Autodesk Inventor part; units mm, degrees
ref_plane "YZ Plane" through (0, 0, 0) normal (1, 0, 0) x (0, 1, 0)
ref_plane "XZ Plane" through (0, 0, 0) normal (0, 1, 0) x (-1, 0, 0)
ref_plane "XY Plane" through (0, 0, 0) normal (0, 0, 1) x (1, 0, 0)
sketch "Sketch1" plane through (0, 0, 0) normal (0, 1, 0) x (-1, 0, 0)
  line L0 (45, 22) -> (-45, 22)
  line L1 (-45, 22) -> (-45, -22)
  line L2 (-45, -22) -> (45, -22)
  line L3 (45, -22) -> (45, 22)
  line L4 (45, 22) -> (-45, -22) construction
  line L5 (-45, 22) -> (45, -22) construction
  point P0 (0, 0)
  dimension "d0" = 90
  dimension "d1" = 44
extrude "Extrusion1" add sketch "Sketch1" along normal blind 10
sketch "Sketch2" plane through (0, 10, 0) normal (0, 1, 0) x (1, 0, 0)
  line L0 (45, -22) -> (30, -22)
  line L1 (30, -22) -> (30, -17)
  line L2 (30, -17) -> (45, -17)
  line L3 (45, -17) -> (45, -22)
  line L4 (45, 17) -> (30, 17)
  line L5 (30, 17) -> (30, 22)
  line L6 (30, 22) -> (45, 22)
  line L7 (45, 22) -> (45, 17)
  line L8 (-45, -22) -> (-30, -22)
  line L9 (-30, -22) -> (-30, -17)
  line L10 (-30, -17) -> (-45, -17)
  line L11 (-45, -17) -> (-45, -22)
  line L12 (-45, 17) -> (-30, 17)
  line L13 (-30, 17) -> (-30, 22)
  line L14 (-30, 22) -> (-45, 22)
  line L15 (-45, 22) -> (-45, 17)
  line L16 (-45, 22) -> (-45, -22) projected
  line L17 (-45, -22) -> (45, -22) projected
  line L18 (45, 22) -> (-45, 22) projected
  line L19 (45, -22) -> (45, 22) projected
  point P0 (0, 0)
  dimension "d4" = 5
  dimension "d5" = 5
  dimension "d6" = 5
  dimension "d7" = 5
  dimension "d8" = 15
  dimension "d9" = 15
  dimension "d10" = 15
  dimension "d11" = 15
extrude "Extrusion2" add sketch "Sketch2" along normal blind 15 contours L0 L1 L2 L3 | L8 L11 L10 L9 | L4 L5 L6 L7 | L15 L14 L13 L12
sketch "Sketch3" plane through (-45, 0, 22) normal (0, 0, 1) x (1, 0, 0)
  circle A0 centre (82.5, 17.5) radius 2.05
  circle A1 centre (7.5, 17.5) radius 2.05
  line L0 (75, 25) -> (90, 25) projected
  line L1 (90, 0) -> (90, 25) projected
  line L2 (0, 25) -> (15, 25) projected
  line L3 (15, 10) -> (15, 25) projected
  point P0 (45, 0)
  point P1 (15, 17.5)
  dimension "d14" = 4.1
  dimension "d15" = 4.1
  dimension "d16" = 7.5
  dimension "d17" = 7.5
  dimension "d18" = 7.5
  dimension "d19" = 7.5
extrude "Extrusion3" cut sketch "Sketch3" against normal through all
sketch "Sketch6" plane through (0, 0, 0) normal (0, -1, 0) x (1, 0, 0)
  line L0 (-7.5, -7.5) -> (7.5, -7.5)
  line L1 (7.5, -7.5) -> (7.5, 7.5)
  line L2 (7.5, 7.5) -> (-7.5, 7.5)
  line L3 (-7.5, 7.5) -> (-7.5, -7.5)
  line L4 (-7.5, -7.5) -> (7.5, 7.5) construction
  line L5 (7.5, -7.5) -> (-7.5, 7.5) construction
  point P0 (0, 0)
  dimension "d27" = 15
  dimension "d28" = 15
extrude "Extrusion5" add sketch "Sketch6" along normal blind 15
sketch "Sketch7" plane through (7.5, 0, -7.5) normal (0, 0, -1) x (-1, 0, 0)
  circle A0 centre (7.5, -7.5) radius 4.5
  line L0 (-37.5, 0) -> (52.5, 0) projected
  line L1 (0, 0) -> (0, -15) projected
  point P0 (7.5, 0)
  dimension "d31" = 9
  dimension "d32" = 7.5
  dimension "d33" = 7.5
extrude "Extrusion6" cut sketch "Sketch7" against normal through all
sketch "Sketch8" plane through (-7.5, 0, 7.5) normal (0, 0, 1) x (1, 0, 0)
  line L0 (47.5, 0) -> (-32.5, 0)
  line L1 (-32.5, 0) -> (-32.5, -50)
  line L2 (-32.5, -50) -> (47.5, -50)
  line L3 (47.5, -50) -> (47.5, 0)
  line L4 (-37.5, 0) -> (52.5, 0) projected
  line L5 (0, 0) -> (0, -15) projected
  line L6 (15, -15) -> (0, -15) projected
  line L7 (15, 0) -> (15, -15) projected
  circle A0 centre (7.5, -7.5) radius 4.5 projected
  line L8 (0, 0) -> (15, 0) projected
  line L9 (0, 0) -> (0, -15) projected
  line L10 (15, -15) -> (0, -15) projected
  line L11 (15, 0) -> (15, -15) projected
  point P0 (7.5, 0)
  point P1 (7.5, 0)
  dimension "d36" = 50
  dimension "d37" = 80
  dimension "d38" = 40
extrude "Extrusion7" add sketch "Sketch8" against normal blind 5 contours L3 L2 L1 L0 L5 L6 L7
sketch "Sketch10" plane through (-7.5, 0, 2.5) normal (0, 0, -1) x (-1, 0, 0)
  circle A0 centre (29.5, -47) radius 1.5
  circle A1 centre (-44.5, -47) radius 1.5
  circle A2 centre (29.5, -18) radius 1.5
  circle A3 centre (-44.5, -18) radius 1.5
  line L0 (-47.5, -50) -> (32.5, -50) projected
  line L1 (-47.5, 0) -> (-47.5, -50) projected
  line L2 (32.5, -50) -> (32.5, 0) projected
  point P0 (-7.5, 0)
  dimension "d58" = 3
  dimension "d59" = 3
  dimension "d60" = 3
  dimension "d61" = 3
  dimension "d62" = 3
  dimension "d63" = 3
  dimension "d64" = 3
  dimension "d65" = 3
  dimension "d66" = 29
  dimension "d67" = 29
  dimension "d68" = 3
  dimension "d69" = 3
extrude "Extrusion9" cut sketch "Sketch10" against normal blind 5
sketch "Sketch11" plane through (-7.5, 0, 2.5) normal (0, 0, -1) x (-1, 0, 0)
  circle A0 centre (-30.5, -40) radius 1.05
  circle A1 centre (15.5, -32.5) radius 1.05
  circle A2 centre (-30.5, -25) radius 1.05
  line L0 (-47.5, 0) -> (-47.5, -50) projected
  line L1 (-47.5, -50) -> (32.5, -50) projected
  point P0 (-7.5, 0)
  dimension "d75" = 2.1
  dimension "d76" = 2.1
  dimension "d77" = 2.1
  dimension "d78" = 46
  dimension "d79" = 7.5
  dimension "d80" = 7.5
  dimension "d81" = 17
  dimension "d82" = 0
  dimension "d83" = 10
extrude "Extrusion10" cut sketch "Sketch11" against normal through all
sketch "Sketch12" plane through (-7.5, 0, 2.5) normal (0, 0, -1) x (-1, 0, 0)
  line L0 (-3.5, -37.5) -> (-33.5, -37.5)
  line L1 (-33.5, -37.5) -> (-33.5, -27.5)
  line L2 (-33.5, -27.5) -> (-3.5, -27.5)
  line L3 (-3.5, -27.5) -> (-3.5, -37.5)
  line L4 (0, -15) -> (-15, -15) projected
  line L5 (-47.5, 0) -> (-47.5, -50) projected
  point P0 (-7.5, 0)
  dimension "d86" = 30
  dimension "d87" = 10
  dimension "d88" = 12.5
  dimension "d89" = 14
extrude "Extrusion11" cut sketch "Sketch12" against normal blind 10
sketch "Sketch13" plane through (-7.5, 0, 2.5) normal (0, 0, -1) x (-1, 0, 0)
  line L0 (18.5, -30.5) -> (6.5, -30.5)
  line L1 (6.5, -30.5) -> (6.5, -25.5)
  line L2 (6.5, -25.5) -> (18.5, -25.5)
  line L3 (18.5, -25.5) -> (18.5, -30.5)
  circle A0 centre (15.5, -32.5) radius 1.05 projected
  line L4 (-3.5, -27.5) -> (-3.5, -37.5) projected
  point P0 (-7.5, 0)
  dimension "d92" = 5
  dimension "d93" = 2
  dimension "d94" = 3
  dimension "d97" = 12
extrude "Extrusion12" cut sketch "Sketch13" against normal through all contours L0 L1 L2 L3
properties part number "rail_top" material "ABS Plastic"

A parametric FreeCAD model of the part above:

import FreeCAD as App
import Part
import Sketcher
Q = App.Units.Quantity

doc = App.newDocument("Part")
body = doc.addObject("PartDesign::Body", "Body")

# Sketch on XZ plane
sketch1 = doc.addObject("Sketcher::SketchObject", "Sketch")
body.addObject(sketch1)
sketch1.AttachmentSupport = (doc.XZ_Plane, [""])
sketch1.MapMode = "FlatFace"
sketch1.addGeometry([
    Part.LineSegment(App.Vector(-45, -22, 0), App.Vector(-45, 22, 0)),
    Part.LineSegment(App.Vector(-45, 22, 0), App.Vector(45, 22, 0)),
    Part.LineSegment(App.Vector(45, 22, 0), App.Vector(45, -22, 0)),
    Part.LineSegment(App.Vector(45, -22, 0), App.Vector(-45, -22, 0)),
], False)
sketch1.addConstraint([
    Sketcher.Constraint("Coincident", 0, 2, 1, 1),
    Sketcher.Constraint("Coincident", 1, 2, 2, 1),
    Sketcher.Constraint("Coincident", 2, 2, 3, 1),
    Sketcher.Constraint("Coincident", 3, 2, 0, 1),
    Sketcher.Constraint("Vertical", 0),
    Sketcher.Constraint("Horizontal", 1),
    Sketcher.Constraint("Vertical", 2),
    Sketcher.Constraint("Horizontal", 3),
    Sketcher.Constraint("Symmetric", 0, 2, 2, 2, -1, 1),
    Sketcher.Constraint("DistanceX", 1, 1, 1, 2, Q("90 mm")),
    Sketcher.Constraint("DistanceY", 0, 1, 0, 2, Q("44 mm")),
])
pad1 = doc.addObject("PartDesign::Pad", "Pad")
body.addObject(pad1)
pad1.Profile = sketch1
pad1.Length = 10
pad1.Reversed = True

# Sketch on XZ plane
sketch2 = doc.addObject("Sketcher::SketchObject", "Sketch001")
body.addObject(sketch2)
sketch2.AttachmentSupport = (doc.XZ_Plane, [""])
sketch2.MapMode = "FlatFace"
sketch2.AttachmentOffset = App.Placement(App.Vector(0, 0, -10), App.Rotation())
sketch2.addGeometry([
    Part.LineSegment(App.Vector(30, 22, 0), App.Vector(45, 22, 0)),  # 0
    Part.LineSegment(App.Vector(45, 22, 0), App.Vector(45, 17, 0)),  # 1
    Part.LineSegment(App.Vector(45, 17, 0), App.Vector(30, 17, 0)),  # 2
    Part.LineSegment(App.Vector(30, 17, 0), App.Vector(30, 22, 0)),  # 3
    Part.LineSegment(App.Vector(-45, 22, 0), App.Vector(-30, 22, 0)),  # 4
    Part.LineSegment(App.Vector(-30, 22, 0), App.Vector(-30, 17, 0)),  # 5
    Part.LineSegment(App.Vector(-30, 17, 0), App.Vector(-45, 17, 0)),  # 6
    Part.LineSegment(App.Vector(-45, 17, 0), App.Vector(-45, 22, 0)),  # 7
    Part.LineSegment(App.Vector(30, -17, 0), App.Vector(45, -17, 0)),  # 8
    Part.LineSegment(App.Vector(45, -17, 0), App.Vector(45, -22, 0)),  # 9
    Part.LineSegment(App.Vector(45, -22, 0), App.Vector(30, -22, 0)),  # 10
    Part.LineSegment(App.Vector(30, -22, 0), App.Vector(30, -17, 0)),  # 11
    Part.LineSegment(App.Vector(-45, -22, 0), App.Vector(-45, -17, 0)),  # 12
    Part.LineSegment(App.Vector(-45, -17, 0), App.Vector(-30, -17, 0)),  # 13
    Part.LineSegment(App.Vector(-30, -17, 0), App.Vector(-30, -22, 0)),  # 14
    Part.LineSegment(App.Vector(-30, -22, 0), App.Vector(-45, -22, 0)),  # 15
], False)
sketch2.addConstraint([
    Sketcher.Constraint("Coincident", 0, 2, 1, 1),
    Sketcher.Constraint("Coincident", 1, 2, 2, 1),
    Sketcher.Constraint("Coincident", 2, 2, 3, 1),
    Sketcher.Constraint("Coincident", 3, 2, 0, 1),
    Sketcher.Constraint("Coincident", 4, 2, 5, 1),
    Sketcher.Constraint("Coincident", 5, 2, 6, 1),
    Sketcher.Constraint("Coincident", 6, 2, 7, 1),
    Sketcher.Constraint("Coincident", 7, 2, 4, 1),
    Sketcher.Constraint("Coincident", 8, 2, 9, 1),
    Sketcher.Constraint("Coincident", 9, 2, 10, 1),
    Sketcher.Constraint("Coincident", 10, 2, 11, 1),
    Sketcher.Constraint("Coincident", 11, 2, 8, 1),
    Sketcher.Constraint("Coincident", 12, 2, 13, 1),
    Sketcher.Constraint("Coincident", 13, 2, 14, 1),
    Sketcher.Constraint("Coincident", 14, 2, 15, 1),
    Sketcher.Constraint("Coincident", 15, 2, 12, 1),
    Sketcher.Constraint("Horizontal", 0),
    Sketcher.Constraint("Vertical", 1),
    Sketcher.Constraint("Horizontal", 2),
    Sketcher.Constraint("Vertical", 3),
    Sketcher.Constraint("Horizontal", 4),
    Sketcher.Constraint("Vertical", 5),
    Sketcher.Constraint("Horizontal", 6),
    Sketcher.Constraint("Vertical", 7),
    Sketcher.Constraint("Horizontal", 8),
    Sketcher.Constraint("Vertical", 9),
    Sketcher.Constraint("Horizontal", 10),
    Sketcher.Constraint("Vertical", 11),
    Sketcher.Constraint("Vertical", 12),
    Sketcher.Constraint("Horizontal", 13),
    Sketcher.Constraint("Vertical", 14),
    Sketcher.Constraint("Horizontal", 15),
    Sketcher.Constraint("Symmetric", 6, 2, 8, 2, -1, 1),
    Sketcher.Constraint("Symmetric", 4, 2, 10, 2, -1, 1),
    Sketcher.Constraint("Symmetric", 1, 2, 12, 2, -1, 1),
    Sketcher.Constraint("Symmetric", 3, 2, 14, 2, -1, 1),
    Sketcher.Constraint("Symmetric", 3, 2, 4, 2, -2),
    Sketcher.Constraint("Symmetric", 1, 2, 6, 2, -2),
    Sketcher.Constraint("DistanceX", 0, 1, 0, 2, Q("15 mm")),
    Sketcher.Constraint("DistanceY", 1, 2, 1, 1, Q("5 mm")),
    Sketcher.Constraint("DistanceX", -1, 1, 0, 2, Q("45 mm")),
    Sketcher.Constraint("DistanceY", -1, 1, 0, 2, Q("22 mm")),
])
pad2 = doc.addObject("PartDesign::Pad", "Pad001")
body.addObject(pad2)
pad2.Profile = sketch2
pad2.Length = 15
pad2.Reversed = True

# Sketch on XY plane
sketch3 = doc.addObject("Sketcher::SketchObject", "Sketch002")
body.addObject(sketch3)
sketch3.AttachmentSupport = (doc.XY_Plane, [""])
sketch3.MapMode = "FlatFace"
sketch3.AttachmentOffset = App.Placement(App.Vector(0, 0, 22), App.Rotation())
sketch3.addGeometry([
    Part.Circle(App.Vector(37.5, 17.5, 0), App.Vector(0, 0, 1), 2.05),
    Part.Circle(App.Vector(-37.5, 17.5, 0), App.Vector(0, 0, 1), 2.05),
], False)
sketch3.addConstraint([
    Sketcher.Constraint("Equal", 0, 1),
    Sketcher.Constraint("Symmetric", 0, 3, 1, 3, -2),
    Sketcher.Constraint("Diameter", 0, Q("4.1 mm")),
    Sketcher.Constraint("DistanceX", 1, 3, 0, 3, Q("75 mm")),
    Sketcher.Constraint("DistanceY", -1, 1, 0, 3, Q("17.5 mm")),
])
pocket1 = doc.addObject("PartDesign::Pocket", "Pocket")
body.addObject(pocket1)
pocket1.Profile = sketch3
pocket1.Type = "ThroughAll"

# Sketch on XZ plane
sketch4 = doc.addObject("Sketcher::SketchObject", "Sketch003")
body.addObject(sketch4)
sketch4.AttachmentSupport = (doc.XZ_Plane, [""])
sketch4.MapMode = "FlatFace"
sketch4.addGeometry([
    Part.LineSegment(App.Vector(-7.5, 7.5, 0), App.Vector(-7.5, -7.5, 0)),
    Part.LineSegment(App.Vector(-7.5, -7.5, 0), App.Vector(7.5, -7.5, 0)),
    Part.LineSegment(App.Vector(7.5, -7.5, 0), App.Vector(7.5, 7.5, 0)),
    Part.LineSegment(App.Vector(7.5, 7.5, 0), App.Vector(-7.5, 7.5, 0)),
], False)
sketch4.addConstraint([
    Sketcher.Constraint("Coincident", 0, 2, 1, 1),
    Sketcher.Constraint("Coincident", 1, 2, 2, 1),
    Sketcher.Constraint("Coincident", 2, 2, 3, 1),
    Sketcher.Constraint("Coincident", 3, 2, 0, 1),
    Sketcher.Constraint("Vertical", 0),
    Sketcher.Constraint("Horizontal", 1),
    Sketcher.Constraint("Vertical", 2),
    Sketcher.Constraint("Horizontal", 3),
    Sketcher.Constraint("Symmetric", 0, 2, 2, 2, -1, 1),
    Sketcher.Constraint("Equal", 3, 0),
    Sketcher.Constraint("DistanceX", 1, 1, 1, 2, Q("15 mm")),
])
pad3 = doc.addObject("PartDesign::Pad", "Pad002")
body.addObject(pad3)
pad3.Profile = sketch4
pad3.Length = 15

# Sketch on XY plane
sketch5 = doc.addObject("Sketcher::SketchObject", "Sketch004")
body.addObject(sketch5)
sketch5.AttachmentSupport = (doc.XY_Plane, [""])
sketch5.MapMode = "FlatFace"
sketch5.AttachmentOffset = App.Placement(App.Vector(0, 0, -7.5), App.Rotation())
sketch5.addGeometry(Part.Circle(App.Vector(0, -7.5, 0), App.Vector(0, 0, 1), 4.5), False)
sketch5.addConstraint([
    Sketcher.Constraint("PointOnObject", 0, 3, -2),
    Sketcher.Constraint("Diameter", 0, Q("9 mm")),
    Sketcher.Constraint("DistanceY", 0, 3, -1, 1, Q("7.5 mm")),
])
pocket2 = doc.addObject("PartDesign::Pocket", "Pocket001")
body.addObject(pocket2)
pocket2.Profile = sketch5
pocket2.Type = "ThroughAll"
pocket2.Reversed = True

# Sketch on XY plane
sketch6 = doc.addObject("Sketcher::SketchObject", "Sketch005")
body.addObject(sketch6)
sketch6.AttachmentSupport = (doc.XY_Plane, [""])
sketch6.MapMode = "FlatFace"
sketch6.AttachmentOffset = App.Placement(App.Vector(0, 0, 7.5), App.Rotation())
sketch6.addGeometry([
    Part.LineSegment(App.Vector(40, -50, 0), App.Vector(40, 0, 0)),  # 0
    Part.LineSegment(App.Vector(40, 0, 0), App.Vector(7.5, 0, 0)),  # 1
    Part.LineSegment(App.Vector(7.5, 0, 0), App.Vector(7.5, -15, 0)),  # 2
    Part.LineSegment(App.Vector(7.5, -15, 0), App.Vector(-7.5, -15, 0)),  # 3
    Part.LineSegment(App.Vector(-7.5, -15, 0), App.Vector(-7.5, 0, 0)),  # 4
    Part.LineSegment(App.Vector(-7.5, 0, 0), App.Vector(-40, 0, 0)),  # 5
    Part.LineSegment(App.Vector(-40, 0, 0), App.Vector(-40, -50, 0)),  # 6
    Part.LineSegment(App.Vector(-40, -50, 0), App.Vector(40, -50, 0)),  # 7
], False)
sketch6.addConstraint([
    Sketcher.Constraint("Coincident", 0, 2, 1, 1),
    Sketcher.Constraint("Coincident", 1, 2, 2, 1),
    Sketcher.Constraint("Coincident", 2, 2, 3, 1),
    Sketcher.Constraint("Coincident", 3, 2, 4, 1),
    Sketcher.Constraint("Coincident", 4, 2, 5, 1),
    Sketcher.Constraint("Coincident", 5, 2, 6, 1),
    Sketcher.Constraint("Coincident", 6, 2, 7, 1),
    Sketcher.Constraint("Coincident", 7, 2, 0, 1),
    Sketcher.Constraint("Vertical", 0),
    Sketcher.Constraint("Horizontal", 1),
    Sketcher.Constraint("Vertical", 2),
    Sketcher.Constraint("Horizontal", 3),
    Sketcher.Constraint("Vertical", 4),
    Sketcher.Constraint("Horizontal", 5),
    Sketcher.Constraint("Vertical", 6),
    Sketcher.Constraint("Horizontal", 7),
    Sketcher.Constraint("Symmetric", 1, 2, 4, 2, -1, 1),
    Sketcher.Constraint("Symmetric", 0, 2, 5, 2, -2),
    Sketcher.Constraint("Equal", 3, 2),
    Sketcher.Constraint("DistanceX", 7, 1, 7, 2, Q("80 mm")),
    Sketcher.Constraint("DistanceY", 0, 1, 0, 2, Q("50 mm")),
    Sketcher.Constraint("DistanceX", 3, 2, 3, 1, Q("15 mm")),
])
pad4 = doc.addObject("PartDesign::Pad", "Pad003")
body.addObject(pad4)
pad4.Profile = sketch6
pad4.Length = 5
pad4.Reversed = True

# Sketch on XY plane
sketch7 = doc.addObject("Sketcher::SketchObject", "Sketch006")
body.addObject(sketch7)
sketch7.AttachmentSupport = (doc.XY_Plane, [""])
sketch7.MapMode = "FlatFace"
sketch7.AttachmentOffset = App.Placement(App.Vector(0, 0, 2.5), App.Rotation())
sketch7.addGeometry([
    Part.Circle(App.Vector(-37, -47, 0), App.Vector(0, 0, 1), 1.5),
    Part.Circle(App.Vector(37, -47, 0), App.Vector(0, 0, 1), 1.5),
    Part.Circle(App.Vector(-37, -18, 0), App.Vector(0, 0, 1), 1.5),
    Part.Circle(App.Vector(37, -18, 0), App.Vector(0, 0, 1), 1.5),
], False)
sketch7.addConstraint([
    Sketcher.Constraint("Equal", 0, 1),
    Sketcher.Constraint("Equal", 1, 2),
    Sketcher.Constraint("Equal", 2, 3),
    Sketcher.Constraint("Symmetric", 0, 3, 1, 3, -2),
    Sketcher.Constraint("Symmetric", 2, 3, 3, 3, -2),
    Sketcher.Constraint("Vertical", 0, 3, 2, 3),
    Sketcher.Constraint("Diameter", 0, Q("3 mm")),
    Sketcher.Constraint("DistanceY", 0, 3, 2, 3, Q("29 mm")),
    Sketcher.Constraint("DistanceX", 0, 3, -1, 1, Q("37 mm")),
    Sketcher.Constraint("DistanceY", 0, 3, -1, 1, Q("47 mm")),
])
pocket3 = doc.addObject("PartDesign::Pocket", "Pocket002")
body.addObject(pocket3)
pocket3.Profile = sketch7
pocket3.Length = 5
pocket3.Reversed = True

# Sketch on XY plane
sketch8 = doc.addObject("Sketcher::SketchObject", "Sketch007")
body.addObject(sketch8)
sketch8.AttachmentSupport = (doc.XY_Plane, [""])
sketch8.MapMode = "FlatFace"
sketch8.AttachmentOffset = App.Placement(App.Vector(0, 0, 2.5), App.Rotation())
sketch8.addGeometry([
    Part.Circle(App.Vector(23, -40, 0), App.Vector(0, 0, 1), 1.05),
    Part.Circle(App.Vector(-23, -32.5, 0), App.Vector(0, 0, 1), 1.05),
    Part.Circle(App.Vector(23, -25, 0), App.Vector(0, 0, 1), 1.05),
], False)
sketch8.addConstraint([
    Sketcher.Constraint("Equal", 0, 1),
    Sketcher.Constraint("Equal", 1, 2),
    Sketcher.Constraint("Vertical", 0, 3, 2, 3),
    Sketcher.Constraint("Diameter", 0, Q("2.1 mm")),
    Sketcher.Constraint("DistanceX", 1, 3, 0, 3, Q("46 mm")),
    Sketcher.Constraint("DistanceY", 0, 3, 1, 3, Q("7.5 mm")),
    Sketcher.Constraint("DistanceY", 1, 3, 2, 3, Q("7.5 mm")),
    Sketcher.Constraint("DistanceX", -1, 1, 0, 3, Q("23 mm")),
    Sketcher.Constraint("DistanceY", 0, 3, -1, 1, Q("40 mm")),
])
pocket4 = doc.addObject("PartDesign::Pocket", "Pocket003")
body.addObject(pocket4)
pocket4.Profile = sketch8
pocket4.Type = "ThroughAll"
pocket4.Reversed = True

# Sketch on XY plane
sketch9 = doc.addObject("Sketcher::SketchObject", "Sketch008")
body.addObject(sketch9)
sketch9.AttachmentSupport = (doc.XY_Plane, [""])
sketch9.MapMode = "FlatFace"
sketch9.AttachmentOffset = App.Placement(App.Vector(0, 0, 2.5), App.Rotation())
sketch9.addGeometry([
    Part.LineSegment(App.Vector(26, -37.5, 0), App.Vector(-4, -37.5, 0)),
    Part.LineSegment(App.Vector(-4, -37.5, 0), App.Vector(-4, -27.5, 0)),
    Part.LineSegment(App.Vector(-4, -27.5, 0), App.Vector(26, -27.5, 0)),
    Part.LineSegment(App.Vector(26, -27.5, 0), App.Vector(26, -37.5, 0)),
], False)
sketch9.addConstraint([
    Sketcher.Constraint("Coincident", 0, 2, 1, 1),
    Sketcher.Constraint("Coincident", 1, 2, 2, 1),
    Sketcher.Constraint("Coincident", 2, 2, 3, 1),
    Sketcher.Constraint("Coincident", 3, 2, 0, 1),
    Sketcher.Constraint("Horizontal", 0),
    Sketcher.Constraint("Vertical", 1),
    Sketcher.Constraint("Horizontal", 2),
    Sketcher.Constraint("Vertical", 3),
    Sketcher.Constraint("DistanceX", 0, 2, 0, 1, Q("30 mm")),
    Sketcher.Constraint("DistanceY", 1, 1, 1, 2, Q("10 mm")),
    Sketcher.Constraint("DistanceX", 0, 2, -1, 1, Q("4 mm")),
    Sketcher.Constraint("DistanceY", 0, 2, -1, 1, Q("37.5 mm")),
])
pocket5 = doc.addObject("PartDesign::Pocket", "Pocket004")
body.addObject(pocket5)
pocket5.Profile = sketch9
pocket5.Length = 10
pocket5.Reversed = True

# Sketch on XY plane
sketch10 = doc.addObject("Sketcher::SketchObject", "Sketch009")
body.addObject(sketch10)
sketch10.AttachmentSupport = (doc.XY_Plane, [""])
sketch10.MapMode = "FlatFace"
sketch10.AttachmentOffset = App.Placement(App.Vector(0, 0, 2.5), App.Rotation())
sketch10.addGeometry([
    Part.LineSegment(App.Vector(-14, -30.5, 0), App.Vector(-26, -30.5, 0)),
    Part.LineSegment(App.Vector(-26, -30.5, 0), App.Vector(-26, -25.5, 0)),
    Part.LineSegment(App.Vector(-26, -25.5, 0), App.Vector(-14, -25.5, 0)),
    Part.LineSegment(App.Vector(-14, -25.5, 0), App.Vector(-14, -30.5, 0)),
], False)
sketch10.addConstraint([
    Sketcher.Constraint("Coincident", 0, 2, 1, 1),
    Sketcher.Constraint("Coincident", 1, 2, 2, 1),
    Sketcher.Constraint("Coincident", 2, 2, 3, 1),
    Sketcher.Constraint("Coincident", 3, 2, 0, 1),
    Sketcher.Constraint("Horizontal", 0),
    Sketcher.Constraint("Vertical", 1),
    Sketcher.Constraint("Horizontal", 2),
    Sketcher.Constraint("Vertical", 3),
    Sketcher.Constraint("DistanceX", 0, 2, 0, 1, Q("12 mm")),
    Sketcher.Constraint("DistanceY", 1, 1, 1, 2, Q("5 mm")),
    Sketcher.Constraint("DistanceX", 0, 2, -1, 1, Q("26 mm")),
    Sketcher.Constraint("DistanceY", 0, 2, -1, 1, Q("30.5 mm")),
])
pocket6 = doc.addObject("PartDesign::Pocket", "Pocket005")
body.addObject(pocket6)
pocket6.Profile = sketch10
pocket6.Type = "ThroughAll"
pocket6.Reversed = True

doc.recompute()
